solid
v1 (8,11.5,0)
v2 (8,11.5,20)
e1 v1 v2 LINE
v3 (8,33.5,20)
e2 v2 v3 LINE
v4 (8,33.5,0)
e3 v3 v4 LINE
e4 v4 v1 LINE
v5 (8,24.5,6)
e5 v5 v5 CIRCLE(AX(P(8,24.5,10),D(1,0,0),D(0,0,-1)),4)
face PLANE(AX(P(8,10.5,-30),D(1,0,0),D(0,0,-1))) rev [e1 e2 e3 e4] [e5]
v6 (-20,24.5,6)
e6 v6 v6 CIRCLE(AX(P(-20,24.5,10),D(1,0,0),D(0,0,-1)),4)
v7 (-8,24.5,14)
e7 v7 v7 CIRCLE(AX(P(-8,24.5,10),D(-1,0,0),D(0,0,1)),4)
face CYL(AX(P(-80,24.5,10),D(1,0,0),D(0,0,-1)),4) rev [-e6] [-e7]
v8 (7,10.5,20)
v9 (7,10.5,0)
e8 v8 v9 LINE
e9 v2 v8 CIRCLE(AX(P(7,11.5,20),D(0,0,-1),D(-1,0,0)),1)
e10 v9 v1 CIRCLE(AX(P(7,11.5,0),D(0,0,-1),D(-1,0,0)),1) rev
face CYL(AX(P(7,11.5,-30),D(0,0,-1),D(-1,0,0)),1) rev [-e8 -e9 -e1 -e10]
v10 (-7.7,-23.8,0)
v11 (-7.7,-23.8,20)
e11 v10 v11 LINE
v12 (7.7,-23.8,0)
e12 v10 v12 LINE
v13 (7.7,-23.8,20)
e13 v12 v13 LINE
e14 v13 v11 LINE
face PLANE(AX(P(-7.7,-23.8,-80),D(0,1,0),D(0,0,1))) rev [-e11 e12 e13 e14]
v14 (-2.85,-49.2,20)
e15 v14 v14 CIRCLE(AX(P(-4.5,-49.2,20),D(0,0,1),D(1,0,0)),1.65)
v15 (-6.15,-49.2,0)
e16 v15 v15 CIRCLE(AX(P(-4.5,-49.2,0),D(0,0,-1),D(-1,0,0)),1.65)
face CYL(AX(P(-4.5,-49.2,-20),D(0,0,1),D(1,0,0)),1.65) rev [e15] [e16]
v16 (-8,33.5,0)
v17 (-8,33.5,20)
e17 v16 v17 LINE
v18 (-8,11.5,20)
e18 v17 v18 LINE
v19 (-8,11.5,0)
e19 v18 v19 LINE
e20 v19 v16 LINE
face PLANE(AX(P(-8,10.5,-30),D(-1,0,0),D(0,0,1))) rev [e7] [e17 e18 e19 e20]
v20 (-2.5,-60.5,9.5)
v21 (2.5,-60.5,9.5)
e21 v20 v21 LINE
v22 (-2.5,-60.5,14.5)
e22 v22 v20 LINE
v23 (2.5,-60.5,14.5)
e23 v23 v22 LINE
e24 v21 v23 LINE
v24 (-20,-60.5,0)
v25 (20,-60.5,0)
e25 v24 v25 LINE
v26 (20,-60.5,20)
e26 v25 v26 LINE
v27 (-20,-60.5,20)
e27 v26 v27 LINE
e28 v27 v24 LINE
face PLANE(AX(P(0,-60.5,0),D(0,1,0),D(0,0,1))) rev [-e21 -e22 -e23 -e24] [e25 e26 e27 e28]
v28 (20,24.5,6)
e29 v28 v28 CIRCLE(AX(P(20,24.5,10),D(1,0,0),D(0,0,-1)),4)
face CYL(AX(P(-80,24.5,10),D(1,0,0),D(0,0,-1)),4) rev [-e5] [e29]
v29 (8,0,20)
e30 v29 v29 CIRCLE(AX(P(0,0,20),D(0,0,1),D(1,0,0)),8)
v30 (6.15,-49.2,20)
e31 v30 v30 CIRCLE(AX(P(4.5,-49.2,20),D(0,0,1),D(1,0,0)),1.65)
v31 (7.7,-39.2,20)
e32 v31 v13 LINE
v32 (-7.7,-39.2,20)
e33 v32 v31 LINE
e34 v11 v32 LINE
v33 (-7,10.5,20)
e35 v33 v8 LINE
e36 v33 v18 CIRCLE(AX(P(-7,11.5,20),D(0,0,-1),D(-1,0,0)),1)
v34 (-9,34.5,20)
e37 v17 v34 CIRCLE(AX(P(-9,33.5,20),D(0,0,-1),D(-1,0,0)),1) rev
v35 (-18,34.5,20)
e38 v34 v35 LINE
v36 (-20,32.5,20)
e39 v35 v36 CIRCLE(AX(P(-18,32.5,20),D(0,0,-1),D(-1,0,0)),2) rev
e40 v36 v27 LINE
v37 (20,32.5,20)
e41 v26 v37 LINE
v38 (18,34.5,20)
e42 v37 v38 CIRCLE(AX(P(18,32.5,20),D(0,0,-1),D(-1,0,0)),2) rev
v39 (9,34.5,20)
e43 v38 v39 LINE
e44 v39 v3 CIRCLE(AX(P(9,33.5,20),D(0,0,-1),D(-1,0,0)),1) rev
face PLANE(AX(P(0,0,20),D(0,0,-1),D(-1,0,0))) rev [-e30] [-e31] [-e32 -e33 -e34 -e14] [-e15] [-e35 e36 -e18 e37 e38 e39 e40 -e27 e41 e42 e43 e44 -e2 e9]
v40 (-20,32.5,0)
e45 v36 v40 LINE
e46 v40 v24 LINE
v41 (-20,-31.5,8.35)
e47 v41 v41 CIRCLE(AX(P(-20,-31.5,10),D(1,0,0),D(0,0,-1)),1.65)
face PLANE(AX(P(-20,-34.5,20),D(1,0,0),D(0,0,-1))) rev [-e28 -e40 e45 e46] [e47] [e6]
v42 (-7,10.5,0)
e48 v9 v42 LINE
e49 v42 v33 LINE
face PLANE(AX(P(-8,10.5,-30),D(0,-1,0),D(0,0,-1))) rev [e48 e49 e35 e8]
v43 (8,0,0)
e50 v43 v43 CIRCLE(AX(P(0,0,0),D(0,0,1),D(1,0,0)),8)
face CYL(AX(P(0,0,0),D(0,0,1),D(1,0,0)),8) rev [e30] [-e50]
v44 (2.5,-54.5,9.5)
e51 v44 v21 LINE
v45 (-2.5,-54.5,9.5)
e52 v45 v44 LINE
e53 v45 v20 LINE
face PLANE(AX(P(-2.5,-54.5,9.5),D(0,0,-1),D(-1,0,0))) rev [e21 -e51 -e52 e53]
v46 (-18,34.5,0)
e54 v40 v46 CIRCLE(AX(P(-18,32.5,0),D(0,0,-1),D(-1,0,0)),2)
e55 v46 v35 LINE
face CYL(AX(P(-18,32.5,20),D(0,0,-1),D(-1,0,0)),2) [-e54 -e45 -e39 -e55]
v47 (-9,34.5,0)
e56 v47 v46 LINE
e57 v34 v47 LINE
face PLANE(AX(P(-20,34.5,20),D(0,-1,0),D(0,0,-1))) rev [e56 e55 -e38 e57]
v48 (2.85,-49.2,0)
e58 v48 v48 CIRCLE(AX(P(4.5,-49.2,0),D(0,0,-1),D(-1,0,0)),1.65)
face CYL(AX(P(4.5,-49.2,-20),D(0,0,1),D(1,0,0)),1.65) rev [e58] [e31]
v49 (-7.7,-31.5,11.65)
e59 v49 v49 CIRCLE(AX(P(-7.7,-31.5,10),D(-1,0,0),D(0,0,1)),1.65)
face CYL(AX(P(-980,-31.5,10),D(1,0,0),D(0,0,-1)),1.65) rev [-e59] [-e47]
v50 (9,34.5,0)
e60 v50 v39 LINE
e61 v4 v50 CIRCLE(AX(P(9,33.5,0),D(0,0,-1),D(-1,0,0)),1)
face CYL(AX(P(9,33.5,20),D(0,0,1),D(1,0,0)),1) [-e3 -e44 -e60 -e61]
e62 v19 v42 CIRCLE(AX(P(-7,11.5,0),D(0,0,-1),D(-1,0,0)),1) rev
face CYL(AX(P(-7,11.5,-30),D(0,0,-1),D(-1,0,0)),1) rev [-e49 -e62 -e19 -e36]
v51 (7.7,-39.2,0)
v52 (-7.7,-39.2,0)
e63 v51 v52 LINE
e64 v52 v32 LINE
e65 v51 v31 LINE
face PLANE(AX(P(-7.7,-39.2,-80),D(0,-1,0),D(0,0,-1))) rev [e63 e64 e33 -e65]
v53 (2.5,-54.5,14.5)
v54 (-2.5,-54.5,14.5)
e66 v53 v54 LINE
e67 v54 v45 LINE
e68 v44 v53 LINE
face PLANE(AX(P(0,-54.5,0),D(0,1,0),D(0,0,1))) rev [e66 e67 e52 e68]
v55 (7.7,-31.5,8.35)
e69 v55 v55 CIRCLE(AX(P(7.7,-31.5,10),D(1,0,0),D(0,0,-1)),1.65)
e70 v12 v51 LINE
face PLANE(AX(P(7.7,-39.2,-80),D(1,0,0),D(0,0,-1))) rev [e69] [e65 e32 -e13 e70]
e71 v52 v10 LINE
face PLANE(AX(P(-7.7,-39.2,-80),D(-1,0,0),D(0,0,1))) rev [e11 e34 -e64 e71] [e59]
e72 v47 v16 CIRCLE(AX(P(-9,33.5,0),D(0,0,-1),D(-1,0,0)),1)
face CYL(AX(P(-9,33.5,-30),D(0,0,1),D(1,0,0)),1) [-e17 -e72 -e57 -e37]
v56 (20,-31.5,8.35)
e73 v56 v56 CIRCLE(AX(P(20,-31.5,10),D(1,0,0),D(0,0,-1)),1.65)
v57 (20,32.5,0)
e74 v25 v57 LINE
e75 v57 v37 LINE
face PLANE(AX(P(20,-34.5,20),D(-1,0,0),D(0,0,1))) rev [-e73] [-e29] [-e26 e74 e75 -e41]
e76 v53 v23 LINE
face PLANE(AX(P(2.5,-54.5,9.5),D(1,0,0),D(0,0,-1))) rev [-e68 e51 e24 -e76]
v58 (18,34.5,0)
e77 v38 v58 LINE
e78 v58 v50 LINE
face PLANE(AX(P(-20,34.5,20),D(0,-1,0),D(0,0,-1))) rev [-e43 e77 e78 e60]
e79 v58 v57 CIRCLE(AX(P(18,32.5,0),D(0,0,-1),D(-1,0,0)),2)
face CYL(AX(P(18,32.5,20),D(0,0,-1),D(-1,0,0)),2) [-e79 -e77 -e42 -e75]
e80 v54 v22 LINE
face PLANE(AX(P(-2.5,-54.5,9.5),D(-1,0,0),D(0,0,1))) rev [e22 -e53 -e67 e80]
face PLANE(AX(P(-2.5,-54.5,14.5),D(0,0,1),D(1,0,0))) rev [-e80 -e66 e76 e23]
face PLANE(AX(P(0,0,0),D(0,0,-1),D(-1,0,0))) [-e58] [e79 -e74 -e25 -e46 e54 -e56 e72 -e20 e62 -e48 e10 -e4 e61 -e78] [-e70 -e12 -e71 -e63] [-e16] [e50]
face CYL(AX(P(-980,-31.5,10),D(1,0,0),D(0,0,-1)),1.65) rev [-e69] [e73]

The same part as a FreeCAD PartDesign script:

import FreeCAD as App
import Part
import Sketcher


def edges_at(feature, points):
    """Names of the edges that pass closest to the given points."""
    edges = feature.Shape.Edges
    near = lambda p: min(range(len(edges)), key=lambda i: edges[i].distToShape(Part.Vertex(*p))[0])
    return sorted({f"Edge{near(p) + 1}" for p in points})

doc = App.newDocument("Part")
body = doc.addObject("PartDesign::Body", "Body")

# Sketch on XY plane
sketch1 = body.newObject("Sketcher::SketchObject", "Sketch")
sketch1.AttachmentSupport = (doc.getObject("XY_Plane"), [""])
sketch1.MapMode = "FlatFace"
sketch1.addGeometry([
    Part.LineSegment(App.Vector(-20, 34, 0), App.Vector(-20, -34, 0)),
    Part.LineSegment(App.Vector(-20, -34, 0), App.Vector(20, -34, 0)),
    Part.LineSegment(App.Vector(20, -34, 0), App.Vector(20, 34, 0)),
    Part.LineSegment(App.Vector(20, 34, 0), App.Vector(-20, 34, 0)),
], False)
sketch1.addConstraint([
    Sketcher.Constraint("Coincident", 0, 2, 1, 1),
    Sketcher.Constraint("Coincident", 1, 2, 2, 1),
    Sketcher.Constraint("Coincident", 2, 2, 3, 1),
    Sketcher.Constraint("Coincident", 3, 2, 0, 1),
    Sketcher.Constraint("Vertical", 0),
    Sketcher.Constraint("Horizontal", 1),
    Sketcher.Constraint("Vertical", 2),
    Sketcher.Constraint("Horizontal", 3),
    Sketcher.Constraint("Symmetric", 0, 2, 2, 2, -1, 1),
    Sketcher.Constraint("DistanceX", 1, 1, 1, 2, 40.0),
    Sketcher.Constraint("DistanceY", 0, 2, 0, 1, 69.0),
])
pad1 = body.newObject("PartDesign::Pad", "Pad")
pad1.Profile = sketch1
pad1.Length = 20

# Sketch on XY plane
sketch2 = body.newObject("Sketcher::SketchObject", "Sketch001")
sketch2.AttachmentSupport = (doc.getObject("XY_Plane"), [""])
sketch2.MapMode = "FlatFace"
sketch2.AttachmentOffset = App.Placement(App.Vector(0, 0, 20), App.Rotation())
sketch2.addGeometry(Part.Circle(App.Vector(0, 0, 0), App.Vector(0, 0, 1), 8), False)
sketch2.addConstraint([
    Sketcher.Constraint("Coincident", 0, 3, -1, 1),
    Sketcher.Constraint("Diameter", 0, 16.0),
])
pocket1 = body.newObject("PartDesign::Pocket", "Pocket")
pocket1.Profile = sketch2
pocket1.Length = 20

# Sketch on XZ plane
sketch3 = body.newObject("Sketcher::SketchObject", "Sketch002")
sketch3.AttachmentSupport = (doc.getObject("XZ_Plane"), [""])
sketch3.MapMode = "FlatFace"
sketch3.AttachmentOffset = App.Placement(App.Vector(0, 0, 34.5), App.Rotation())
sketch3.addGeometry([
    Part.LineSegment(App.Vector(-20, 20, 0), App.Vector(-20, 0, 0)),
    Part.LineSegment(App.Vector(-20, 0, 0), App.Vector(20, 0, 0)),
    Part.LineSegment(App.Vector(20, 0, 0), App.Vector(20, 20, 0)),
    Part.LineSegment(App.Vector(20, 20, 0), App.Vector(-20, 20, 0)),
], False)
sketch3.addConstraint([
    Sketcher.Constraint("Coincident", 0, 2, 1, 1),
    Sketcher.Constraint("Coincident", 1, 2, 2, 1),
    Sketcher.Constraint("Coincident", 2, 2, 3, 1),
    Sketcher.Constraint("Coincident", 3, 2, 0, 1),
    Sketcher.Constraint("Vertical", 0),
    Sketcher.Constraint("Horizontal", 1),
    Sketcher.Constraint("Vertical", 2),
    Sketcher.Constraint("Horizontal", 3),
    Sketcher.Constraint("Symmetric", 0, 2, 1, 2, -1, 1),
    Sketcher.Constraint("DistanceX", 1, 1, 1, 2, 40.0),
    Sketcher.Constraint("DistanceY", 0, 2, 0, 1, 20.0),
])
pad2 = body.newObject("PartDesign::Pad", "Pad001")
pad2.Profile = sketch3
pad2.Length = 26

# Sketch on XY plane
sketch4 = body.newObject("Sketcher::SketchObject", "Sketch003")
sketch4.AttachmentSupport = (doc.getObject("XY_Plane"), [""])
sketch4.MapMode = "FlatFace"
sketch4.AttachmentOffset = App.Placement(App.Vector(0, 0, 20), App.Rotation())
sketch4.addGeometry([
    Part.LineSegment(App.Vector(-8, -24, 0), App.Vector(-8, -39, 0)),
    Part.LineSegment(App.Vector(-8, -39, 0), App.Vector(8, -39, 0)),
    Part.LineSegment(App.Vector(8, -39, 0), App.Vector(8, -24, 0)),
    Part.LineSegment(App.Vector(8, -24, 0), App.Vector(-8, -24, 0)),
], False)
sketch4.addConstraint([
    Sketcher.Constraint("Coincident", 0, 2, 1, 1),
    Sketcher.Constraint("Coincident", 1, 2, 2, 1),
    Sketcher.Constraint("Coincident", 2, 2, 3, 1),
    Sketcher.Constraint("Coincident", 3, 2, 0, 1),
    Sketcher.Constraint("Vertical", 0),
    Sketcher.Constraint("Horizontal", 1),
    Sketcher.Constraint("Vertical", 2),
    Sketcher.Constraint("Horizontal", 3),
    Sketcher.Constraint("Equal", 3, 0),
    Sketcher.Constraint("DistanceX", 1, 1, 1, 2, 15.4),
    Sketcher.Constraint("DistanceX", 0, 2, -1, 1, 7.7),
    Sketcher.Constraint("DistanceY", 0, 2, -1, 1, 39.2),
])
pocket2 = body.newObject("PartDesign::Pocket", "Pocket001")
pocket2.Profile = sketch4
pocket2.Length = 100

# Sketch on XY plane
sketch5 = body.newObject("Sketcher::SketchObject", "Sketch004")
sketch5.AttachmentSupport = (doc.getObject("XY_Plane"), [""])
sketch5.MapMode = "FlatFace"
sketch5.AttachmentOffset = App.Placement(App.Vector(0, 0, 20), App.Rotation())
sketch5.addGeometry([
    Part.Circle(App.Vector(4.5, -49.2, 0), App.Vector(0, 0, 1), 1.6),
    Part.Circle(App.Vector(-4.5, -49.2, 0), App.Vector(0, 0, 1), 1.6),
], False)
sketch5.addConstraint([
    Sketcher.Constraint("Equal", 0, 1),
    Sketcher.Constraint("Symmetric", 0, 3, 1, 3, -2),
    Sketcher.Constraint("Diameter", 0, 3.3),
    Sketcher.Constraint("DistanceX", 1, 3, 0, 3, 9.0),
    Sketcher.Constraint("DistanceY", 0, 3, -1, 1, 49.2),
])
pocket3 = body.newObject("PartDesign::Pocket", "Pocket002")
pocket3.Profile = sketch5
pocket3.Length = 40

# Sketch on XZ plane
sketch6 = body.newObject("Sketcher::SketchObject", "Sketch005")
sketch6.AttachmentSupport = (doc.getObject("XZ_Plane"), [""])
sketch6.MapMode = "FlatFace"
sketch6.AttachmentOffset = App.Placement(App.Vector(0, 0, 60.5), App.Rotation())
sketch6.addGeometry([
    Part.LineSegment(App.Vector(-2, 14, 0), App.Vector(-2, 10, 0)),
    Part.LineSegment(App.Vector(-2, 10, 0), App.Vector(2, 10, 0)),
    Part.LineSegment(App.Vector(2, 10, 0), App.Vector(2, 14, 0)),
    Part.LineSegment(App.Vector(2, 14, 0), App.Vector(-2, 14, 0)),
], False)
sketch6.addConstraint([
    Sketcher.Constraint("Coincident", 0, 2, 1, 1),
    Sketcher.Constraint("Coincident", 1, 2, 2, 1),
    Sketcher.Constraint("Coincident", 2, 2, 3, 1),
    Sketcher.Constraint("Coincident", 3, 2, 0, 1),
    Sketcher.Constraint("Vertical", 0),
    Sketcher.Constraint("Horizontal", 1),
    Sketcher.Constraint("Vertical", 2),
    Sketcher.Constraint("Horizontal", 3),
    Sketcher.Constraint("Equal", 3, 0),
    Sketcher.Constraint("DistanceX", 1, 1, 1, 2, 5.0),
    Sketcher.Constraint("DistanceX", 0, 2, -1, 1, 2.5),
    Sketcher.Constraint("DistanceY", -1, 1, 0, 2, 9.5),
])
pocket4 = body.newObject("PartDesign::Pocket", "Pocket003")
pocket4.Profile = sketch6
pocket4.Length = 6
doc.recompute()

fillet = body.newObject("PartDesign::Fillet", "Fillet")
fillet.Base = (pocket4, edges_at(pocket4, [(-20, 34.5, 10), (20, 34.5, 10)]))
fillet.Radius = 2

# Sketch on XY plane
sketch7 = body.newObject("Sketcher::SketchObject", "Sketch006")
sketch7.AttachmentSupport = (doc.getObject("XY_Plane"), [""])
sketch7.MapMode = "FlatFace"
sketch7.AttachmentOffset = App.Placement(App.Vector(0, 0, 20), App.Rotation())
sketch7.addGeometry([
    Part.LineSegment(App.Vector(-8, 34, 0), App.Vector(-8, 10, 0)),
    Part.LineSegment(App.Vector(-8, 10, 0), App.Vector(8, 10, 0)),
    Part.LineSegment(App.Vector(8, 10, 0), App.Vector(8, 34, 0)),
    Part.LineSegment(App.Vector(8, 34, 0), App.Vector(-8, 34, 0)),
], False)
sketch7.addConstraint([
    Sketcher.Constraint("Coincident", 0, 2, 1, 1),
    Sketcher.Constraint("Coincident", 1, 2, 2, 1),
    Sketcher.Constraint("Coincident", 2, 2, 3, 1),
    Sketcher.Constraint("Coincident", 3, 2, 0, 1),
    Sketcher.Constraint("Vertical", 0),
    Sketcher.Constraint("Horizontal", 1),
    Sketcher.Constraint("Vertical", 2),
    Sketcher.Constraint("Horizontal", 3),
    Sketcher.Constraint("DistanceX", 1, 1, 1, 2, 16.0),
    Sketcher.Constraint("DistanceY", 0, 2, 0, 1, 24.0),
    Sketcher.Constraint("DistanceX", 0, 2, -1, 1, 8.0),
    Sketcher.Constraint("DistanceY", -1, 1, 0, 2, 10.5),
])
pocket5 = body.newObject("PartDesign::Pocket", "Pocket004")
pocket5.Profile = sketch7
pocket5.Length = 50

# Sketch on YZ plane
sketch8 = body.newObject("Sketcher::SketchObject", "Sketch007")
sketch8.AttachmentSupport = (doc.getObject("YZ_Plane"), [""])
sketch8.MapMode = "FlatFace"
sketch8.AttachmentOffset = App.Placement(App.Vector(0, 0, 20), App.Rotation())
sketch8.addGeometry(Part.Circle(App.Vector(24.5, 10, 0), App.Vector(0, 0, 1), 4), False)
sketch8.addConstraint([
    Sketcher.Constraint("Diameter", 0, 8.0),
    Sketcher.Constraint("DistanceY", -1, 1, 0, 3, 10.0),
    Sketcher.Constraint("DistanceX", -1, 1, 0, 3, 24.5),
])
pocket6 = body.newObject("PartDesign::Pocket", "Pocket005")
pocket6.Profile = sketch8
pocket6.Length = 100
doc.recompute()

fillet2 = body.newObject("PartDesign::Fillet", "Fillet001")
fillet2.Base = (pocket6, edges_at(pocket6, [
    (-8, 34.5, 10),
    (8, 34.5, 10),
    (8, 10.5, 10),
    (-8, 10.5, 10),
]))
fillet2.Radius = 1

# Sketch on YZ plane
sketch9 = body.newObject("Sketcher::SketchObject", "Sketch008")
sketch9.AttachmentSupport = (doc.getObject("YZ_Plane"), [""])
sketch9.MapMode = "FlatFace"
sketch9.AttachmentOffset = App.Placement(App.Vector(0, 0, 20), App.Rotation())
sketch9.addGeometry(Part.Circle(App.Vector(-31.5, 10, 0), App.Vector(0, 0, 1), 1.6), False)
sketch9.addConstraint([
    Sketcher.Constraint("Diameter", 0, 3.3),
    Sketcher.Constraint("DistanceY", -1, 1, 0, 3, 10.0),
    Sketcher.Constraint("DistanceX", 0, 3, -1, 1, 31.5),
])
pocket7 = body.newObject("PartDesign::Pocket", "Pocket006")
pocket7.Profile = sketch9
pocket7.Length = 1000

doc.recompute()
